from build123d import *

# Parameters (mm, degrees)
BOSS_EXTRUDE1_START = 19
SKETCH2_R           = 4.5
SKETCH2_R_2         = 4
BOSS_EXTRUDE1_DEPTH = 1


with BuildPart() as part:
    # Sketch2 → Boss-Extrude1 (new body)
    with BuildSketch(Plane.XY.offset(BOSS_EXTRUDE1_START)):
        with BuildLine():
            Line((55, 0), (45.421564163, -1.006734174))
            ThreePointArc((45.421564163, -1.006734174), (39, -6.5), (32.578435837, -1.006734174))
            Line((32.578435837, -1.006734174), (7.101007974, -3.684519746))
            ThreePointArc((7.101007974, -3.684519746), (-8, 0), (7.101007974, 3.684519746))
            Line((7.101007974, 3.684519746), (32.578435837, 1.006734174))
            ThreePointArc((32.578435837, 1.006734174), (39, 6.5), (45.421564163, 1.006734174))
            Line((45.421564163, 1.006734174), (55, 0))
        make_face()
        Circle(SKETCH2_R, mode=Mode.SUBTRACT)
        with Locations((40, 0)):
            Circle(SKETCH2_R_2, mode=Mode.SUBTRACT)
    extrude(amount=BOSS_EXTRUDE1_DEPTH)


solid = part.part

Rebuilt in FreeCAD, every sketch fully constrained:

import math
import FreeCAD as App
import Part
import Sketcher

V = App.Vector
Q = App.Units.Quantity

doc = App.newDocument("Part")
body = doc.addObject("PartDesign::Body", "Body")

# Sketch on XY plane
sketch1 = body.newObject("Sketcher::SketchObject", "Sketch")
sketch1.AttachmentSupport = (doc.getObject("XY_Plane"), [""])
sketch1.MapMode = "FlatFace"
sketch1.AttachmentOffset = App.Placement(V(0, 0, 19), App.Rotation())
sketch1.addGeometry([
    Part.LineSegment(V(45.4, -1, 0), V(55, 0, 0)),  # 0
    Part.LineSegment(V(55, 0, 0), V(45.4, 1, 0)),  # 1
    Part.ArcOfCircle(Part.Circle(V(39, 0, 0), V(0, 0, 1), 6.5), math.radians(9), math.radians(171)),  # 2
    Part.LineSegment(V(32.6, 1, 0), V(7.1, 3.7, 0)),  # 3
    Part.ArcOfCircle(Part.Circle(V(0, 0, 0), V(0, 0, 1), 8), math.radians(27), math.radians(333)),  # 4
    Part.LineSegment(V(7.1, -3.7, 0), V(32.6, -1, 0)),  # 5
    Part.ArcOfCircle(Part.Circle(V(39, 0, 0), V(0, 0, 1), 6.5), math.radians(-171), math.radians(-9)),  # 6
    Part.Circle(V(40, 0, 0), V(0, 0, 1), 4),  # 7
    Part.Circle(V(0, 0, 0), V(0, 0, 1), 4.5),  # 8
], False)
sketch1.addConstraint([
    Sketcher.Constraint("Coincident", 0, 2, 1, 1),
    Sketcher.Constraint("Coincident", 1, 2, 2, 1),
    Sketcher.Constraint("Coincident", 2, 2, 3, 1),
    Sketcher.Constraint("Coincident", 3, 2, 4, 1),
    Sketcher.Constraint("Coincident", 4, 2, 5, 1),
    Sketcher.Constraint("Coincident", 5, 2, 6, 1),
    Sketcher.Constraint("Coincident", 6, 2, 0, 1),
    Sketcher.Constraint("Coincident", 4, 3, -1, 1),
    Sketcher.Constraint("Coincident", 8, 3, -1, 1),
    Sketcher.Constraint("Coincident", 6, 3, 2, 3),
    Sketcher.Constraint("Equal", 2, 6),
    Sketcher.Constraint("Symmetric", 2, 2, 5, 2, -1),
    Sketcher.Constraint("PointOnObject", 7, 3, -1),
    Sketcher.Constraint("PointOnObject", 0, 2, -1),
    Sketcher.Constraint("Parallel", 1, 3),
    Sketcher.Constraint("Parallel", 0, 5),
    Sketcher.Constraint("Horizontal", 1, 2, 2, 2),
    Sketcher.Constraint("Horizontal", 5, 2, 6, 2),
    Sketcher.Constraint("Diameter", 7, Q("8 mm")),
    Sketcher.Constraint("Diameter", 8, Q("9 mm")),
    Sketcher.Constraint("Radius", 4, Q("8 mm")),
    Sketcher.Constraint("Radius", 2, Q("6.5 mm")),
    Sketcher.Constraint("Angle", 0, Q("6 deg")),
    Sketcher.Constraint("DistanceX", -1, 1, 2, 3, Q("39 mm")),
    Sketcher.Constraint("DistanceX", -1, 1, 7, 3, Q("40 mm")),
    Sketcher.Constraint("DistanceX", -1, 1, 0, 2, Q("55 mm")),
])
pad1 = body.newObject("PartDesign::Pad", "Pad")
pad1.Profile = sketch1
pad1.Length = 1

doc.recompute()
